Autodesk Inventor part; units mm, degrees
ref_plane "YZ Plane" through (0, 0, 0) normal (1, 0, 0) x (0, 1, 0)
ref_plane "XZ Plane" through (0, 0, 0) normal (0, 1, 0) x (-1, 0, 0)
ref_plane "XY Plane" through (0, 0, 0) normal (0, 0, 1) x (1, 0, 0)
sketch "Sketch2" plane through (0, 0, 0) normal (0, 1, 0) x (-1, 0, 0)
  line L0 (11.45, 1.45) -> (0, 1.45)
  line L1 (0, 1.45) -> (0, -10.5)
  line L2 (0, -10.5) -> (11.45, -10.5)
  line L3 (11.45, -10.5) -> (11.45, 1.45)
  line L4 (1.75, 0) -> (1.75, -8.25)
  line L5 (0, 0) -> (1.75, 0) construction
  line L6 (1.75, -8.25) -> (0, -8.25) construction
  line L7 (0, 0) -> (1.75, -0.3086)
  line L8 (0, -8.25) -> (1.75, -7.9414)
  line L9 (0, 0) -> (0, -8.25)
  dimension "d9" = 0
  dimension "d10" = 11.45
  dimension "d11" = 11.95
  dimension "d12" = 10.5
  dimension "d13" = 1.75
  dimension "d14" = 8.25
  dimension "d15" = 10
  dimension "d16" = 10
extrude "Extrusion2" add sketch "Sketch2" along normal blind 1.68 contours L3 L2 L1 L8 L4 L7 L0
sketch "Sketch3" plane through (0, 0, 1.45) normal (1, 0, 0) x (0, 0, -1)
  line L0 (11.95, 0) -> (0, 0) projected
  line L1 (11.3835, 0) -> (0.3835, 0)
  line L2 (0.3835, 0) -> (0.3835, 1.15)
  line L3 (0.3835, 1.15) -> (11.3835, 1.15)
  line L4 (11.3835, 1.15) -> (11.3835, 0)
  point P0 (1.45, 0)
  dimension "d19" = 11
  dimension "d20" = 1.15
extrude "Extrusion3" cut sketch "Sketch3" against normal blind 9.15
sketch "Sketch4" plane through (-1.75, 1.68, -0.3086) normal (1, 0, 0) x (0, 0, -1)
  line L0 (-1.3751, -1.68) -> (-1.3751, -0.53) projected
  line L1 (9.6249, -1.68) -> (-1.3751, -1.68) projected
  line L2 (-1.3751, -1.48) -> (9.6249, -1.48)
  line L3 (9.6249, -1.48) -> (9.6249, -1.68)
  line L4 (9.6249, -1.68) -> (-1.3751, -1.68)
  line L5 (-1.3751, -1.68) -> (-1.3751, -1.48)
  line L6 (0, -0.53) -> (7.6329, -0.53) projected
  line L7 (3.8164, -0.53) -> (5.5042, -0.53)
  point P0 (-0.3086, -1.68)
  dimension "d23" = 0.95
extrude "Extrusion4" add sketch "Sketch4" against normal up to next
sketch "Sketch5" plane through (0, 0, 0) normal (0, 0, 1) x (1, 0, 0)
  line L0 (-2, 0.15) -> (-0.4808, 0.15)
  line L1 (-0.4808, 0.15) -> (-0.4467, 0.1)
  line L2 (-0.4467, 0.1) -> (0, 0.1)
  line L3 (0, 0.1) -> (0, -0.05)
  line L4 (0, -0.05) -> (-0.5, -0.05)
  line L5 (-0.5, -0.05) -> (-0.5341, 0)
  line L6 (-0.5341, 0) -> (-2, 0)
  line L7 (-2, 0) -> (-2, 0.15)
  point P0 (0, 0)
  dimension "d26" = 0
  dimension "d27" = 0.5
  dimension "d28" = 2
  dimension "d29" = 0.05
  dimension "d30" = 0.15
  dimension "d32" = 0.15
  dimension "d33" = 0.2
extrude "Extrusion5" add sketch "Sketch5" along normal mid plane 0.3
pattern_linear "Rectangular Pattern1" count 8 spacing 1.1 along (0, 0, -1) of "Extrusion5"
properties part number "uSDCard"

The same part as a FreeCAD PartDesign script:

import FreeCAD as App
import Part
import Sketcher
Q = App.Units.Quantity


def add_polygon(sketch, points):
    """Adds a closed chain of lines whose ends are joined by coincident constraints."""
    first, n = sketch.GeometryCount, len(points)
    for a, b in zip(points, points[1:] + points[:1]):
        sketch.addGeometry(Part.LineSegment(App.Vector(*a, 0), App.Vector(*b, 0)), False)
    for i in range(n):
        sketch.addConstraint(Sketcher.Constraint("Coincident", first + i, 2, first + (i + 1) % n, 1))

doc = App.newDocument("Part")
body = doc.addObject("PartDesign::Body", "Body")

# Sketch on XZ plane
sketch1 = body.newObject("Sketcher::SketchObject", "Sketch")
sketch1.AttachmentSupport = (doc.getObject("XZ_Plane"), [""])
sketch1.MapMode = "FlatFace"
add_polygon(sketch1, [(-11.4, -10.5), (-11.4, 1.4), (0, 1.4), (0, 0), (-1.8, -0.3), (-1.8, -7.9), (0, -8.2), (0, -10.5)])  # lines 0-7
sketch1.addConstraint(Sketcher.Constraint("Vertical", 0))
sketch1.addConstraint(Sketcher.Constraint("Horizontal", 1))
sketch1.addConstraint(Sketcher.Constraint("Vertical", 2))
sketch1.addConstraint(Sketcher.Constraint("Vertical", 4))
sketch1.addConstraint(Sketcher.Constraint("Vertical", 6))
sketch1.addConstraint(Sketcher.Constraint("Horizontal", 7))
sketch1.addConstraint(Sketcher.Constraint("Coincident", 2, 2, -1, 1))
sketch1.addConstraint(Sketcher.Constraint("PointOnObject", 5, 2, -2))
sketch1.addConstraint(Sketcher.Constraint("Equal", 3, 5))
sketch1.addConstraint(Sketcher.Constraint("DistanceX", 1, 1, 1, 2, 11.45))
sketch1.addConstraint(Sketcher.Constraint("DistanceY", 0, 1, 0, 2, 11.95))
sketch1.addConstraint(Sketcher.Constraint("DistanceY", 6, 2, -1, 1, 10.5))
sketch1.addConstraint(Sketcher.Constraint("DistanceX", 3, 2, -1, 1, 1.75))
sketch1.addConstraint(Sketcher.Constraint("DistanceY", 5, 2, -1, 1, 8.25))
sketch1.addConstraint(Sketcher.Constraint("Angle", 3, Q("-169.999 deg")))
pad1 = body.newObject("PartDesign::Pad", "Pad")
pad1.Profile = sketch1
pad1.Length = 1.68
pad1.Reversed = True

# Sketch on YZ plane
sketch2 = body.newObject("Sketcher::SketchObject", "Sketch001")
sketch2.AttachmentSupport = (doc.getObject("YZ_Plane"), [""])
sketch2.MapMode = "FlatFace"
add_polygon(sketch2, [(0, 1.1), (0, -9.9), (1.1, -9.9), (1.1, 1.1)])  # lines 0-3
sketch2.addConstraint(Sketcher.Constraint("Vertical", 0))
sketch2.addConstraint(Sketcher.Constraint("Horizontal", 1))
sketch2.addConstraint(Sketcher.Constraint("Vertical", 2))
sketch2.addConstraint(Sketcher.Constraint("Horizontal", 3))
sketch2.addConstraint(Sketcher.Constraint("PointOnObject", 0, 2, -2))
sketch2.addConstraint(Sketcher.Constraint("DistanceY", 0, 2, 0, 1, 11.0))
sketch2.addConstraint(Sketcher.Constraint("DistanceX", 1, 1, 1, 2, 1.15))
sketch2.addConstraint(Sketcher.Constraint("DistanceY", 0, 2, -1, 1, 9.9335))
pocket1 = body.newObject("PartDesign::Pocket", "Pocket")
pocket1.Profile = sketch2
pocket1.Length = 9.15

# Sketch on YZ plane
sketch3 = body.newObject("Sketcher::SketchObject", "Sketch002")
sketch3.AttachmentSupport = (doc.getObject("YZ_Plane"), [""])
sketch3.MapMode = "FlatFace"
sketch3.AttachmentOffset = App.Placement(App.Vector(0, 0, -1.75), App.Rotation())
add_polygon(sketch3, [(0.2, 1.07), (0, 1.07), (0, -9.93), (0.2, -9.93)])  # lines 0-3
sketch3.addConstraint(Sketcher.Constraint("Horizontal", 0))
sketch3.addConstraint(Sketcher.Constraint("Vertical", 1))
sketch3.addConstraint(Sketcher.Constraint("Horizontal", 2))
sketch3.addConstraint(Sketcher.Constraint("Vertical", 3))
sketch3.addConstraint(Sketcher.Constraint("PointOnObject", 0, 2, -2))
sketch3.addConstraint(Sketcher.Constraint("DistanceY", 1, 2, 1, 1, 11.0))
sketch3.addConstraint(Sketcher.Constraint("DistanceX", 0, 2, 0, 1, 0.2))
sketch3.addConstraint(Sketcher.Constraint("DistanceY", -1, 1, 0, 2, 1.0665))
pad2 = body.newObject("PartDesign::Pad", "Pad001")
pad2.Profile = sketch3
pad2.Type = "UpToFirst"
pad2.Reversed = True

# Sketch on XY plane
sketch4 = body.newObject("Sketcher::SketchObject", "Sketch003")
sketch4.AttachmentSupport = (doc.getObject("XY_Plane"), [""])
sketch4.MapMode = "FlatFace"
add_polygon(sketch4, [(-0.48, 0.15), (-2, 0.15), (-2, 0), (-0.53, 0), (-0.5, -0.05), (0, -0.05), (0, 0.1), (-0.45, 0.1)])  # lines 0-7
sketch4.addConstraint(Sketcher.Constraint("Horizontal", 0))
sketch4.addConstraint(Sketcher.Constraint("Vertical", 1))
sketch4.addConstraint(Sketcher.Constraint("Horizontal", 2))
sketch4.addConstraint(Sketcher.Constraint("Horizontal", 4))
sketch4.addConstraint(Sketcher.Constraint("Vertical", 5))
sketch4.addConstraint(Sketcher.Constraint("Horizontal", 6))
sketch4.addConstraint(Sketcher.Constraint("PointOnObject", 1, 2, -1))
sketch4.addConstraint(Sketcher.Constraint("PointOnObject", 4, 2, -2))
sketch4.addConstraint(Sketcher.Constraint("Parallel", 3, 7))
sketch4.addConstraint(Sketcher.Constraint("Equal", 1, 5))
sketch4.addConstraint(Sketcher.Constraint("DistanceX", 4, 1, 4, 2, 0.5))
sketch4.addConstraint(Sketcher.Constraint("DistanceX", 0, 2, -1, 1, 2.0))
sketch4.addConstraint(Sketcher.Constraint("DistanceY", 1, 2, 1, 1, 0.15))
sketch4.addConstraint(Sketcher.Constraint("DistanceY", 3, 2, 0, 2, 0.2))
sketch4.addConstraint(Sketcher.Constraint("DistanceX", 2, 1, 2, 2, 1.466))
sketch4.addConstraint(Sketcher.Constraint("DistanceX", 0, 2, 0, 1, 1.5192))
pad3 = body.newObject("PartDesign::Pad", "Pad002")
pad3.Profile = sketch4
pad3.Length = 0.3
pad3.Midplane = True
doc.recompute()

linearpattern = body.newObject("PartDesign::LinearPattern", "LinearPattern")
linearpattern.Originals = [pad3]
linearpattern.Direction = (doc.getObject("Z_Axis"), [""])
linearpattern.Mode = "offset"
linearpattern.Offset = 1.1
linearpattern.Occurrences = 8
linearpattern.Reversed = True
body.Tip = linearpattern

doc.recompute()
